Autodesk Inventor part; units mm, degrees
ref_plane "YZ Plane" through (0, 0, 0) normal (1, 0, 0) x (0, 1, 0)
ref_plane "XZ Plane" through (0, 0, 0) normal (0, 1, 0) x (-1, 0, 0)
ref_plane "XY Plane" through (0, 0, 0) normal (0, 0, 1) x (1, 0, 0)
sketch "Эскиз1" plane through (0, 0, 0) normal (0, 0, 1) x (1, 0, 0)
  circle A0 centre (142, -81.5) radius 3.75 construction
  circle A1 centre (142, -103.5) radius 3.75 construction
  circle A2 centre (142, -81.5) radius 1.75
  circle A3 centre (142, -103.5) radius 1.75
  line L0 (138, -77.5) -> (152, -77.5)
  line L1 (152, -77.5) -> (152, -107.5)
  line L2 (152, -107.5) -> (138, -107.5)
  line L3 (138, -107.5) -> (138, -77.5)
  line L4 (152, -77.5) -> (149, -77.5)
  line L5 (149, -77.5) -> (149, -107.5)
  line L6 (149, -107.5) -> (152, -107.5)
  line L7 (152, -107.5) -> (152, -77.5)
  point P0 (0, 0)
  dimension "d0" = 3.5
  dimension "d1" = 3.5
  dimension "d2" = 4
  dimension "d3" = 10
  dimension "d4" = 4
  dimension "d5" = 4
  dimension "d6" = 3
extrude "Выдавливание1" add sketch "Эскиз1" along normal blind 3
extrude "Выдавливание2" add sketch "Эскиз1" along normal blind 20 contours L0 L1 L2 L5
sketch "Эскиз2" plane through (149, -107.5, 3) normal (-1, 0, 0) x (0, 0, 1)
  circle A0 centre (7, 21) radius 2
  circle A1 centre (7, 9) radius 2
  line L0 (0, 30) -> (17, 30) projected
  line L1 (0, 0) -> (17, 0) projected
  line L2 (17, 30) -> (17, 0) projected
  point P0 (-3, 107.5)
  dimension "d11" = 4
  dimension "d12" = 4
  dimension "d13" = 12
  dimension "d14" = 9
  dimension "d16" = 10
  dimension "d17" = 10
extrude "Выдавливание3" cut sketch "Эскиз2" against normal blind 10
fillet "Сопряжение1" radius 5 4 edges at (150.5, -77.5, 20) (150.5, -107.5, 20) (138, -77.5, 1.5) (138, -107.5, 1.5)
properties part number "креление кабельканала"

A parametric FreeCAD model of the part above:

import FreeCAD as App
import Part
import Sketcher

V = App.Vector


def edges_at(feature, points):
    """Names of the edges that pass closest to the given points."""
    edges = feature.Shape.Edges
    near = lambda p: min(range(len(edges)), key=lambda i: edges[i].distToShape(Part.Vertex(*p))[0])
    return sorted({f"Edge{near(p) + 1}" for p in points})


def add_polygon(sketch, points):
    """Adds a closed chain of lines whose ends are joined by coincident constraints."""
    first, n = sketch.GeometryCount, len(points)
    for a, b in zip(points, points[1:] + points[:1]):
        sketch.addGeometry(Part.LineSegment(App.Vector(*a, 0), App.Vector(*b, 0)), False)
    for i in range(n):
        sketch.addConstraint(Sketcher.Constraint("Coincident", first + i, 2, first + (i + 1) % n, 1))

doc = App.newDocument("Part")
body = doc.addObject("PartDesign::Body", "Body")

# Sketch on XY plane
sketch1 = doc.addObject("Sketcher::SketchObject", "Sketch")
body.addObject(sketch1)
sketch1.AttachmentSupport = (doc.XY_Plane, [""])
sketch1.MapMode = "FlatFace"
add_polygon(sketch1, [(138, -77.5), (138, -107.5), (152, -107.5), (152, -77.5)])  # lines 0-3
sketch1.addGeometry(Part.Circle(V(142, -103.5, 0), V(0, 0, 1), 1.8), False)  # 4
sketch1.addGeometry(Part.Circle(V(142, -81.5, 0), V(0, 0, 1), 1.8), False)  # 5
sketch1.addConstraint([
    Sketcher.Constraint("Vertical", 0),
    Sketcher.Constraint("Horizontal", 1),
    Sketcher.Constraint("Vertical", 2),
    Sketcher.Constraint("Horizontal", 3),
    Sketcher.Constraint("Equal", 4, 5),
    Sketcher.Constraint("Vertical", 4, 3, 5, 3),
    Sketcher.Constraint("Diameter", 4, 3.5),
    Sketcher.Constraint("DistanceX", 0, 2, 4, 3, 4.0),
    Sketcher.Constraint("DistanceY", 0, 2, 4, 3, 4.0),
    Sketcher.Constraint("DistanceX", 4, 3, 1, 2, 10.0),
    Sketcher.Constraint("DistanceY", 5, 3, 2, 2, 4.0),
    Sketcher.Constraint("DistanceY", 0, 2, 0, 1, 30.0),
    Sketcher.Constraint("DistanceX", -1, 1, 4, 3, 142.0),
    Sketcher.Constraint("DistanceY", 4, 3, -1, 1, 103.5),
])
pad1 = doc.addObject("PartDesign::Pad", "Pad")
body.addObject(pad1)
pad1.Profile = sketch1
pad1.Length = 3

# Sketch on XY plane
sketch2 = doc.addObject("Sketcher::SketchObject", "Sketch001")
body.addObject(sketch2)
sketch2.AttachmentSupport = (doc.XY_Plane, [""])
sketch2.MapMode = "FlatFace"
add_polygon(sketch2, [(152, -77.5), (149, -77.5), (149, -107.5), (152, -107.5)])  # lines 0-3
sketch2.addConstraint([
    Sketcher.Constraint("Horizontal", 0),
    Sketcher.Constraint("Vertical", 1),
    Sketcher.Constraint("Horizontal", 2),
    Sketcher.Constraint("Vertical", 3),
    Sketcher.Constraint("DistanceX", 0, 2, 0, 1, 3.0),
    Sketcher.Constraint("DistanceY", 1, 2, 1, 1, 30.0),
    Sketcher.Constraint("DistanceX", -1, 1, 0, 2, 149.0),
    Sketcher.Constraint("DistanceY", 0, 2, -1, 1, 77.5),
])
pad2 = doc.addObject("PartDesign::Pad", "Pad001")
body.addObject(pad2)
pad2.Profile = sketch2
pad2.Length = 20

# Sketch on YZ plane
sketch3 = doc.addObject("Sketcher::SketchObject", "Sketch002")
body.addObject(sketch3)
sketch3.AttachmentSupport = (doc.YZ_Plane, [""])
sketch3.MapMode = "FlatFace"
sketch3.AttachmentOffset = App.Placement(V(0, 0, 149), App.Rotation())
sketch3.addGeometry([
    Part.Circle(V(-86.5, 10, 0), V(0, 0, 1), 2),
    Part.Circle(V(-98.5, 10, 0), V(0, 0, 1), 2),
], False)
sketch3.addConstraint([
    Sketcher.Constraint("Equal", 0, 1),
    Sketcher.Constraint("Horizontal", 0, 3, 1, 3),
    Sketcher.Constraint("Diameter", 0, 4.0),
    Sketcher.Constraint("DistanceY", -1, 1, 0, 3, 10.0),
    Sketcher.Constraint("DistanceX", 1, 3, 0, 3, 12.0),
    Sketcher.Constraint("DistanceX", 0, 3, -1, 1, 86.5),
])
pocket1 = doc.addObject("PartDesign::Pocket", "Pocket")
body.addObject(pocket1)
pocket1.Profile = sketch3
pocket1.Length = 10
pocket1.Reversed = True
doc.recompute()

fillet = doc.addObject("PartDesign::Fillet", "Fillet")
body.addObject(fillet)
fillet.Base = (pocket1, edges_at(pocket1, [
    (150.5, -77.5, 20),
    (150.5, -107.5, 20),
    (138, -77.5, 1.5),
    (138, -107.5, 1.5),
]))
fillet.Radius = 5

doc.recompute()
